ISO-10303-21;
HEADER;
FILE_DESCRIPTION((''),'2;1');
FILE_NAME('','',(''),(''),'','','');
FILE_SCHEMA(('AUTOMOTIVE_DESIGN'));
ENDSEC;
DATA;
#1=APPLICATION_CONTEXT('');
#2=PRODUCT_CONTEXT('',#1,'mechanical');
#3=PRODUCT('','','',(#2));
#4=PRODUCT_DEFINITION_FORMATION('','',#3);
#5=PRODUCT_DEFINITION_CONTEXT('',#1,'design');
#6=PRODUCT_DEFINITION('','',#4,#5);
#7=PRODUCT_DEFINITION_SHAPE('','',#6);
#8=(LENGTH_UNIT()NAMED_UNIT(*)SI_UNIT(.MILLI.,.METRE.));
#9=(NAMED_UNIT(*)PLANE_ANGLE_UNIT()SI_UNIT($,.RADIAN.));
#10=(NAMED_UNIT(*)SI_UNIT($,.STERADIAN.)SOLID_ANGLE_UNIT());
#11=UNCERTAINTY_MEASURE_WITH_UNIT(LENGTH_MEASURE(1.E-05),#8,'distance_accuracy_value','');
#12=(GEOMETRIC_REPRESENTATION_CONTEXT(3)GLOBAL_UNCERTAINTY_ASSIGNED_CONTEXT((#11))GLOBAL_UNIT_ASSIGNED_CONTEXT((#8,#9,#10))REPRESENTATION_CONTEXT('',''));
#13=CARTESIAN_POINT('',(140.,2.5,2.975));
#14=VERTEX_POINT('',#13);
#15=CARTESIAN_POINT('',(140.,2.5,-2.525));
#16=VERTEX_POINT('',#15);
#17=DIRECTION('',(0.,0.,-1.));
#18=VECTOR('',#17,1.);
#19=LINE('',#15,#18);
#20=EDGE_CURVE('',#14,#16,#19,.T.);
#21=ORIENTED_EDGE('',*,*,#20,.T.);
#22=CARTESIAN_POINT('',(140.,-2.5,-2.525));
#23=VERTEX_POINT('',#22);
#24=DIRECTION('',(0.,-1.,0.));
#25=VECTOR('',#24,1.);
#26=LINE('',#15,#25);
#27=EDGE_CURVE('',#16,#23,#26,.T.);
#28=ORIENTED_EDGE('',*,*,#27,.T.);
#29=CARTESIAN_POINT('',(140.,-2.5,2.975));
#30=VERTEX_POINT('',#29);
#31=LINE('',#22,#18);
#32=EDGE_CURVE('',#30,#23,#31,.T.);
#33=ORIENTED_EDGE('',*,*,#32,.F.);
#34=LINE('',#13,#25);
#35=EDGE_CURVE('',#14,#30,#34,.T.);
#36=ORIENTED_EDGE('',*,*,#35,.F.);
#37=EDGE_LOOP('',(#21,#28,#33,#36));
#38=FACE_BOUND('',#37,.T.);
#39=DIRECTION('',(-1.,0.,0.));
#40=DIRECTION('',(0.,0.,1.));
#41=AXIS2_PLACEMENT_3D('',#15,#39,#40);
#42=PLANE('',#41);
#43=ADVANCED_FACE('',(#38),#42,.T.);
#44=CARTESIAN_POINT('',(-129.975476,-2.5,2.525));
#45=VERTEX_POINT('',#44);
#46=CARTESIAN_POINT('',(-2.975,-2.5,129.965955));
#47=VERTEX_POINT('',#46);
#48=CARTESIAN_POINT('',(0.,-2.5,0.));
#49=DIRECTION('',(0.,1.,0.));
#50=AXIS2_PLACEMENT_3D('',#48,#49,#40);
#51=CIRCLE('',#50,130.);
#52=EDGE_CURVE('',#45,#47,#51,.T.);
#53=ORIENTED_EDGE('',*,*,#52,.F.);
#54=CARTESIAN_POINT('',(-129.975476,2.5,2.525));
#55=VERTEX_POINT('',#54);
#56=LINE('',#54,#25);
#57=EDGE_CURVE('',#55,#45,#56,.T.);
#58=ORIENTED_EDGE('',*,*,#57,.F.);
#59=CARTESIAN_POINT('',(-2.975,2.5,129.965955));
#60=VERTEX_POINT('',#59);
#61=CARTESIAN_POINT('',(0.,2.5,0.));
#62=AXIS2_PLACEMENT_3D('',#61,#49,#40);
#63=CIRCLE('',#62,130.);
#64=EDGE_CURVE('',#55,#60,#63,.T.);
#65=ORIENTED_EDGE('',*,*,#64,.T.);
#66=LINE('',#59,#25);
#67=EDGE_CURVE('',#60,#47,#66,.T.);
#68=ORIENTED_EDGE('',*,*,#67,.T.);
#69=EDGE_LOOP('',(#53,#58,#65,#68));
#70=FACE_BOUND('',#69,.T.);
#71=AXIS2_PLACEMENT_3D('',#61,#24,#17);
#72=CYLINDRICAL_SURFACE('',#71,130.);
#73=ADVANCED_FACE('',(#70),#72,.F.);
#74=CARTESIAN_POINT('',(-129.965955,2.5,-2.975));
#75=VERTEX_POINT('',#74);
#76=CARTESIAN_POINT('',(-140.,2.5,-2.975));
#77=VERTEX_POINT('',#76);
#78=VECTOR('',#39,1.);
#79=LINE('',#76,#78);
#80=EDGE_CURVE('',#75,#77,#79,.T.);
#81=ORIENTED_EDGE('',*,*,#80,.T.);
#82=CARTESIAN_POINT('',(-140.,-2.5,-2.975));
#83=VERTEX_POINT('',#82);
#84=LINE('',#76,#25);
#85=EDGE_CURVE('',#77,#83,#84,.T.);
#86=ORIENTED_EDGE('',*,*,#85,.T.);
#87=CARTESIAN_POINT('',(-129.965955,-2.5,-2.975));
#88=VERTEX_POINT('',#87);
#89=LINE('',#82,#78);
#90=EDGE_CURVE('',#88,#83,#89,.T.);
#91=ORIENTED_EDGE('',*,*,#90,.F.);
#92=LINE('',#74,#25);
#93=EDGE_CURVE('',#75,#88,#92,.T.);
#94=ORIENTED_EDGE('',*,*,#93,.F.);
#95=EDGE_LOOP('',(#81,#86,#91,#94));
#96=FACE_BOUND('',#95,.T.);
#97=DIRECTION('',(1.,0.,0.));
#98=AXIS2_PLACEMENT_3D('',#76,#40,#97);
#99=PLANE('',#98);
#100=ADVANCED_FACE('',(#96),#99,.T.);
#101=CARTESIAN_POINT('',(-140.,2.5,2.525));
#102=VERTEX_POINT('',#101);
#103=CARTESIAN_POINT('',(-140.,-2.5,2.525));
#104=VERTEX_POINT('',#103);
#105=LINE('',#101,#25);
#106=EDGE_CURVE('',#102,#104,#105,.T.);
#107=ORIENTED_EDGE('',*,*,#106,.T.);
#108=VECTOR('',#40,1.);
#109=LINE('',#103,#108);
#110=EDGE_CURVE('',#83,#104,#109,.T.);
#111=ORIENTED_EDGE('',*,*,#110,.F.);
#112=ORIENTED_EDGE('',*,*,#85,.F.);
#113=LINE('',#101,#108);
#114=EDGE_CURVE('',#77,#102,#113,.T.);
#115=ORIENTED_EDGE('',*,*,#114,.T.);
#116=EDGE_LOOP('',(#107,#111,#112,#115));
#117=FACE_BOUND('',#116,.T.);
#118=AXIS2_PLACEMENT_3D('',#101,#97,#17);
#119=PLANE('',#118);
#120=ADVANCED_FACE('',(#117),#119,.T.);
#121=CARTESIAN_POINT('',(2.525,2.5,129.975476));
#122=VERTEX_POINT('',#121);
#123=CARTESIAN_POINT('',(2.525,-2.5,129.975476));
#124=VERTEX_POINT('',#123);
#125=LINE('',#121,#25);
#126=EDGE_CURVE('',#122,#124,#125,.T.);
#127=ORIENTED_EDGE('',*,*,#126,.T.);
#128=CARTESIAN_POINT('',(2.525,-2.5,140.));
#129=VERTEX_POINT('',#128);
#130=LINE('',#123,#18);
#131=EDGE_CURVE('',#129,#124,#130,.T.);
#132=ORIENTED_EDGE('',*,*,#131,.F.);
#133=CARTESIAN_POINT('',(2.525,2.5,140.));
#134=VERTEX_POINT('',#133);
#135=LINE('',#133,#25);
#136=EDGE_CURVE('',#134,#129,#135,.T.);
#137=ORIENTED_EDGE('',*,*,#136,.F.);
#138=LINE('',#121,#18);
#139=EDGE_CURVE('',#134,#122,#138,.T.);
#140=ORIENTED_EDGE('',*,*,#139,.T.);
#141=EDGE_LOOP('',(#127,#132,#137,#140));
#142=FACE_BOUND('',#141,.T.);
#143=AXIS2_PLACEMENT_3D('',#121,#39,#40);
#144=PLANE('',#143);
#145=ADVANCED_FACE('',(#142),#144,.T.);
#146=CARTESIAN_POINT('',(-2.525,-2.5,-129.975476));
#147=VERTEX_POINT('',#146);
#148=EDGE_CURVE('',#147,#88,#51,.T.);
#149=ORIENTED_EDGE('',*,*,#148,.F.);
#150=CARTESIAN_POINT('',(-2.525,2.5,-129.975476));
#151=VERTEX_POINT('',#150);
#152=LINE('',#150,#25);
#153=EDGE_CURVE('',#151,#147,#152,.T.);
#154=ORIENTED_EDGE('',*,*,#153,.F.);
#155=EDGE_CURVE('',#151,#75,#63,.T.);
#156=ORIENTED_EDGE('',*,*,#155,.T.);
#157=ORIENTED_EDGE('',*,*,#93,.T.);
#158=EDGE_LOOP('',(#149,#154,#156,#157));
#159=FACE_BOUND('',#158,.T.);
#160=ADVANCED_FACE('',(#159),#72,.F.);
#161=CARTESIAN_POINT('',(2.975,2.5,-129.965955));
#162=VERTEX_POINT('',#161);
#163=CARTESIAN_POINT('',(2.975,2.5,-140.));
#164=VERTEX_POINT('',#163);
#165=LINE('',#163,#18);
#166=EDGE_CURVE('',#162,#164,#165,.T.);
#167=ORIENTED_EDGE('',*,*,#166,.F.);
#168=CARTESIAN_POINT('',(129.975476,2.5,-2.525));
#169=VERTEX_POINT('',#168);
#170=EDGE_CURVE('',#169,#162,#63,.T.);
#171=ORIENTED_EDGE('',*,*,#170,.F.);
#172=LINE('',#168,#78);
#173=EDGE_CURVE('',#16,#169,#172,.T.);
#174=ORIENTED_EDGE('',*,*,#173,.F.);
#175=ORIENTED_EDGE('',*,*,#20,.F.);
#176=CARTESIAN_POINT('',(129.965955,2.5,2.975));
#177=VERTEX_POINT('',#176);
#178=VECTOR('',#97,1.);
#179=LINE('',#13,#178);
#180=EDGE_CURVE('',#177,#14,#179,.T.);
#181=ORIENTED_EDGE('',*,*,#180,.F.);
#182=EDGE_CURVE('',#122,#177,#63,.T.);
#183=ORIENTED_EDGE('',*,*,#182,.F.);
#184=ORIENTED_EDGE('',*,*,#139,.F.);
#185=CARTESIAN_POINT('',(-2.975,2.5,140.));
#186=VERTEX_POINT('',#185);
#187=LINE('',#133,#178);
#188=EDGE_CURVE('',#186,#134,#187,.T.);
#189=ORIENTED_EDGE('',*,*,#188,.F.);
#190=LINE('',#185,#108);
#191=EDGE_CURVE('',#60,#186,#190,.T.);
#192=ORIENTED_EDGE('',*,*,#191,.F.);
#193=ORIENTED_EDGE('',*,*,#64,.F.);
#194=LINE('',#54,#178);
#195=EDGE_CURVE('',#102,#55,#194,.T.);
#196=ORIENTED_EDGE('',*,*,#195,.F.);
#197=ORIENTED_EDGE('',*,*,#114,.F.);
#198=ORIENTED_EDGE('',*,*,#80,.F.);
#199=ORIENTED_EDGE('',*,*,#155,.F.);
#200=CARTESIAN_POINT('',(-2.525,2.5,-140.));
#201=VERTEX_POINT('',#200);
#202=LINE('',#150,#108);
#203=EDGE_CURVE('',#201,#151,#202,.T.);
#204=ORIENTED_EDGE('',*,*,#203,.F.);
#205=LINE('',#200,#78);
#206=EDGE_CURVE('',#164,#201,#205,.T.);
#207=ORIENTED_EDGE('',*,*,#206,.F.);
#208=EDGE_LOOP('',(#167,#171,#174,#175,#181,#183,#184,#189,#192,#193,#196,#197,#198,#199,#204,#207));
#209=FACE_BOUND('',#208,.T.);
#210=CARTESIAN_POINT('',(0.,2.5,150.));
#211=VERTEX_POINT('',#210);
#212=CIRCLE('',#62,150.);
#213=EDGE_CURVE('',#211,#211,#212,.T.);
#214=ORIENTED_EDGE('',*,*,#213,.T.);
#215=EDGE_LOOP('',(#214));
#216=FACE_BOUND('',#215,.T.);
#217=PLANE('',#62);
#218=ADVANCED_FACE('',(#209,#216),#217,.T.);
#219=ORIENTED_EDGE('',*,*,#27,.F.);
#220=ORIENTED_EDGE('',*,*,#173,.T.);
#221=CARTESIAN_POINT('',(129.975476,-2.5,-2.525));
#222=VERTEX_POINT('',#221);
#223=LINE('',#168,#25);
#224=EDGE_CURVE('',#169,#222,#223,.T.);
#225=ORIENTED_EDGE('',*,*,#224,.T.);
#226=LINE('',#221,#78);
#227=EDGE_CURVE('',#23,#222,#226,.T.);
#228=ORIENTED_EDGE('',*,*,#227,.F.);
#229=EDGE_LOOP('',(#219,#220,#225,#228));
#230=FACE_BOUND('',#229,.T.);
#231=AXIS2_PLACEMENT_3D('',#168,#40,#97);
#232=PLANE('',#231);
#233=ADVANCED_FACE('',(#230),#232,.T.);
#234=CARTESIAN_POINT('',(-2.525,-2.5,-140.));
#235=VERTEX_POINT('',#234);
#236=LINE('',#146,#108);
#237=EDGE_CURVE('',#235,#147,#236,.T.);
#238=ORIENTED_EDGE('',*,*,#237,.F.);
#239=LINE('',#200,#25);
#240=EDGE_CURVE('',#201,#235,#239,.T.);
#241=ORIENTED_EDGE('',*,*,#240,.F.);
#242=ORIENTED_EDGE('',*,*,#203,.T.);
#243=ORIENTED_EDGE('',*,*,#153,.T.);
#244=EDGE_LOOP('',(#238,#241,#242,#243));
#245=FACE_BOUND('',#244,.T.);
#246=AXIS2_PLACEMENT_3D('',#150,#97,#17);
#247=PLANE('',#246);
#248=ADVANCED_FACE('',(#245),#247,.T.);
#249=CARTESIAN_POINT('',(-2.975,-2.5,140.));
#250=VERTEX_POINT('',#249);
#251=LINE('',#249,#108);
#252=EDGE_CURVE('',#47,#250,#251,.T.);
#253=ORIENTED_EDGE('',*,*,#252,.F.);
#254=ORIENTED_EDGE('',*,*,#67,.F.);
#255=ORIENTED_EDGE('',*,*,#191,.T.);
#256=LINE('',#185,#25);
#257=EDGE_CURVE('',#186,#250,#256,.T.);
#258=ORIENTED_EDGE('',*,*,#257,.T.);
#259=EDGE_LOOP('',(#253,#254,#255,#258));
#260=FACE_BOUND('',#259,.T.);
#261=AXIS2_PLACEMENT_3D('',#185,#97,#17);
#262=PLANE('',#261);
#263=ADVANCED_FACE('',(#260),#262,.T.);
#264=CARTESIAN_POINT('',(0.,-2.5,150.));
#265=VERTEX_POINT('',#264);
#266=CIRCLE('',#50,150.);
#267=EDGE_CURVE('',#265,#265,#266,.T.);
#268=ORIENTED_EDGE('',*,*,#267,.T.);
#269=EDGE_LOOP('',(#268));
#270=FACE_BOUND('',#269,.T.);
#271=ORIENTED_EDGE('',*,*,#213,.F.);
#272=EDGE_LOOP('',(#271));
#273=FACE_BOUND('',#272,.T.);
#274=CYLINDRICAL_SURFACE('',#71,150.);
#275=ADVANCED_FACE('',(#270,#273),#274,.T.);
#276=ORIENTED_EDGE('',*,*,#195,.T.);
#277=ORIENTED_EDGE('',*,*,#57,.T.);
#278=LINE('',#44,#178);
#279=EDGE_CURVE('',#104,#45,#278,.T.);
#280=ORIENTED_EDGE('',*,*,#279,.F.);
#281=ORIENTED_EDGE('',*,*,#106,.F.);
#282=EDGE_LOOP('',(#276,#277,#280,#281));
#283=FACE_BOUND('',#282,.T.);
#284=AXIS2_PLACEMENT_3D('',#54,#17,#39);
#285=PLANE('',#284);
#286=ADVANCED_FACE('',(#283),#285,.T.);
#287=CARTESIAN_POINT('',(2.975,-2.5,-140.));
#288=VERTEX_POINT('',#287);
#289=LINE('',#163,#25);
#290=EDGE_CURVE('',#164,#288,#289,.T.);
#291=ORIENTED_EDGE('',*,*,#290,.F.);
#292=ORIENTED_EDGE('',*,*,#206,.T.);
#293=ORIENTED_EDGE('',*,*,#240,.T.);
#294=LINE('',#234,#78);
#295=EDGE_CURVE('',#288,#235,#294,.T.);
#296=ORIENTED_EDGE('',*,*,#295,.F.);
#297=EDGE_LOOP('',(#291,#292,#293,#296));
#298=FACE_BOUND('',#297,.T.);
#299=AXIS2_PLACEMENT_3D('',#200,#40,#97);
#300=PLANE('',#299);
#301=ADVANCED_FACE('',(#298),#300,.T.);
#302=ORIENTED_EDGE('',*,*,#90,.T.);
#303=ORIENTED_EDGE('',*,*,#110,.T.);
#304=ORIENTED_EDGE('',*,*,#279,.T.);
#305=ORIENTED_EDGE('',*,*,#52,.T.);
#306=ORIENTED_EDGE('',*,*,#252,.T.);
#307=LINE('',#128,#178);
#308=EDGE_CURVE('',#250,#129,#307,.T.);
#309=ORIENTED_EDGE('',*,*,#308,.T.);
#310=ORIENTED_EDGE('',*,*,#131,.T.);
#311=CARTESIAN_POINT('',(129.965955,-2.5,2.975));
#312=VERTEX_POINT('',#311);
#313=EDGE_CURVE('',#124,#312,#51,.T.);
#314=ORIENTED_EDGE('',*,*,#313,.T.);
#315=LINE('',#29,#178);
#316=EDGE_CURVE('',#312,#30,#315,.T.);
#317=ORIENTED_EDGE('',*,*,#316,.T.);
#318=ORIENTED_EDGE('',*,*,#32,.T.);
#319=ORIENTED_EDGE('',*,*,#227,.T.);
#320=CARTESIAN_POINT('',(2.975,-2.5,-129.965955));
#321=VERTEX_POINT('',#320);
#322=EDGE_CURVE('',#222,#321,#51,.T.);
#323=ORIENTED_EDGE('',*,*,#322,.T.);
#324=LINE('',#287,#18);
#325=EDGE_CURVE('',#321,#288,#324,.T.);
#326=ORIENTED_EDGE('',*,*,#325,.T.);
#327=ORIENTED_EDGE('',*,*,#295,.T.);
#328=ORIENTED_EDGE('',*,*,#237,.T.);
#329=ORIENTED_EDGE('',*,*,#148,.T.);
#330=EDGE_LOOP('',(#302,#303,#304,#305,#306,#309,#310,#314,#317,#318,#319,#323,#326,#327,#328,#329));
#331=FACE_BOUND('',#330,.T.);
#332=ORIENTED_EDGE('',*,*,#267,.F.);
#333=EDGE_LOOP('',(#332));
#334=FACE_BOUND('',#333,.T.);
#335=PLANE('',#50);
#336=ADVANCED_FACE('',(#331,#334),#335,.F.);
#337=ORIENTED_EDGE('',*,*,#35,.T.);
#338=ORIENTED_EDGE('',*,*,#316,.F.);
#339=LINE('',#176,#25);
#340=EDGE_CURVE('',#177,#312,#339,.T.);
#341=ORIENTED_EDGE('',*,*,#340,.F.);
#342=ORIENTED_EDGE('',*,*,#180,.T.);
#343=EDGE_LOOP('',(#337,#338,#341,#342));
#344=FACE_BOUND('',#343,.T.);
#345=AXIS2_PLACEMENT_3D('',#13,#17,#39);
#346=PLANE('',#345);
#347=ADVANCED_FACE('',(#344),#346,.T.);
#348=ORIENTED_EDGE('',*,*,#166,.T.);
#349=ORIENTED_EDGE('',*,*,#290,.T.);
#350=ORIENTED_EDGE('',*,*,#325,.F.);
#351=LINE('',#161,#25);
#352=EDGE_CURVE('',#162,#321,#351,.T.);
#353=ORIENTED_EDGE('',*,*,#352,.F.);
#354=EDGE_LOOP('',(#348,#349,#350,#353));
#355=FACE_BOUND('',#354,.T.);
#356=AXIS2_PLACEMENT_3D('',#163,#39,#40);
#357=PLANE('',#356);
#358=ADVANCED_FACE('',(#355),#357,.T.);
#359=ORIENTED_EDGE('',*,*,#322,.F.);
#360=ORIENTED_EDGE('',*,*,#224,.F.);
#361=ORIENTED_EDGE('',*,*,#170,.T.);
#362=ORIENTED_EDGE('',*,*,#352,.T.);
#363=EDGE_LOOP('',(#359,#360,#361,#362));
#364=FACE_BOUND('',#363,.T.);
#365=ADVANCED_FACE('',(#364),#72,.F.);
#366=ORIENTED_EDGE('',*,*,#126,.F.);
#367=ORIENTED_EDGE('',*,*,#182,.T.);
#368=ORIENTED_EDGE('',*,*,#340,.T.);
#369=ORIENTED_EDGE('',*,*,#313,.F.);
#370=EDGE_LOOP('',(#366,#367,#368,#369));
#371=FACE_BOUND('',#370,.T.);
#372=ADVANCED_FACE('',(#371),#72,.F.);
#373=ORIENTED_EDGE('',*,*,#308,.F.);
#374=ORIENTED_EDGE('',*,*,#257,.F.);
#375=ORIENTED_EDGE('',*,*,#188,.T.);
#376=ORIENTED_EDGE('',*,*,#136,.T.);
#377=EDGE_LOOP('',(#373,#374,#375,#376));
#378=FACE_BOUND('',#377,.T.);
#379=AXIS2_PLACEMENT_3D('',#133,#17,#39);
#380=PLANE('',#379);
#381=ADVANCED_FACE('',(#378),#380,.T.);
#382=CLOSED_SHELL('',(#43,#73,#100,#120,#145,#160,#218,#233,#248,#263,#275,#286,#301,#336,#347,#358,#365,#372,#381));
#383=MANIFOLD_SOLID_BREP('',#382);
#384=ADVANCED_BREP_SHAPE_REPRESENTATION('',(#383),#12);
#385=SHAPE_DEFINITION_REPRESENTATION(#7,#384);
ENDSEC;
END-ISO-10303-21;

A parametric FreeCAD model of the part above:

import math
import FreeCAD as App
import Part
import Sketcher

V = App.Vector

doc = App.newDocument("Part")
body = doc.addObject("PartDesign::Body", "Body")

# Sketch on XZ plane
sketch1 = body.newObject("Sketcher::SketchObject", "Sketch")
sketch1.AttachmentSupport = (doc.getObject("XZ_Plane"), [""])
sketch1.MapMode = "FlatFace"
sketch1.addGeometry([
    Part.Circle(V(0, 0, 0), V(0, 0, 1), 150),  # 0
    Part.ArcOfCircle(Part.Circle(V(0, 0, 0), V(0, 0, 1), 130), math.radians(1.311306), math.radians(88.88707)),  # 1
    Part.LineSegment(V(2.525, 129.975476, 0), V(2.525, 140, 0)),  # 2
    Part.LineSegment(V(2.525, 140, 0), V(-2.975, 140, 0)),  # 3
    Part.LineSegment(V(-2.975, 140, 0), V(-2.975, 129.965955, 0)),  # 4
    Part.ArcOfCircle(Part.Circle(V(0, 0, 0), V(0, 0, 1), 130), math.radians(91.311306), math.radians(178.88707)),  # 5
    Part.LineSegment(V(-129.975476, 2.525, 0), V(-140, 2.525, 0)),  # 6
    Part.LineSegment(V(-140, 2.525, 0), V(-140, -2.975, 0)),  # 7
    Part.LineSegment(V(-140, -2.975, 0), V(-129.965955, -2.975, 0)),  # 8
    Part.ArcOfCircle(Part.Circle(V(0, 0, 0), V(0, 0, 1), 130), math.radians(-178.688694), math.radians(-91.11293)),  # 9
    Part.LineSegment(V(-2.525, -129.975476, 0), V(-2.525, -140, 0)),  # 10
    Part.LineSegment(V(-2.525, -140, 0), V(2.975, -140, 0)),  # 11
    Part.LineSegment(V(2.975, -140, 0), V(2.975, -129.965955, 0)),  # 12
    Part.ArcOfCircle(Part.Circle(V(0, 0, 0), V(0, 0, 1), 130), math.radians(-88.688694), math.radians(-1.11293)),  # 13
    Part.LineSegment(V(129.975476, -2.525, 0), V(140, -2.525, 0)),  # 14
    Part.LineSegment(V(140, -2.525, 0), V(140, 2.975, 0)),  # 15
    Part.LineSegment(V(140, 2.975, 0), V(129.965955, 2.975, 0)),  # 16
], False)
sketch1.addConstraint([
    Sketcher.Constraint("Coincident", 1, 2, 2, 1),
    Sketcher.Constraint("Coincident", 2, 2, 3, 1),
    Sketcher.Constraint("Coincident", 3, 2, 4, 1),
    Sketcher.Constraint("Coincident", 4, 2, 5, 1),
    Sketcher.Constraint("Coincident", 5, 2, 6, 1),
    Sketcher.Constraint("Coincident", 6, 2, 7, 1),
    Sketcher.Constraint("Coincident", 7, 2, 8, 1),
    Sketcher.Constraint("Coincident", 8, 2, 9, 1),
    Sketcher.Constraint("Coincident", 9, 2, 10, 1),
    Sketcher.Constraint("Coincident", 10, 2, 11, 1),
    Sketcher.Constraint("Coincident", 11, 2, 12, 1),
    Sketcher.Constraint("Coincident", 12, 2, 13, 1),
    Sketcher.Constraint("Coincident", 13, 2, 14, 1),
    Sketcher.Constraint("Coincident", 14, 2, 15, 1),
    Sketcher.Constraint("Coincident", 15, 2, 16, 1),
    Sketcher.Constraint("Coincident", 16, 2, 1, 1),
    Sketcher.Constraint("Vertical", 2),
    Sketcher.Constraint("Horizontal", 3),
    Sketcher.Constraint("Vertical", 4),
    Sketcher.Constraint("Horizontal", 6),
    Sketcher.Constraint("Vertical", 7),
    Sketcher.Constraint("Horizontal", 8),
    Sketcher.Constraint("Vertical", 10),
    Sketcher.Constraint("Horizontal", 11),
    Sketcher.Constraint("Vertical", 12),
    Sketcher.Constraint("Horizontal", 14),
    Sketcher.Constraint("Vertical", 15),
    Sketcher.Constraint("Horizontal", 16),
    Sketcher.Constraint("Coincident", 0, 3, -1, 1),
    Sketcher.Constraint("Coincident", 1, 3, -1, 1),
    Sketcher.Constraint("Coincident", 5, 3, -1, 1),
    Sketcher.Constraint("Coincident", 9, 3, -1, 1),
    Sketcher.Constraint("Coincident", 13, 3, -1, 1),
    Sketcher.Constraint("Equal", 1, 5),
    Sketcher.Constraint("Equal", 5, 9),
    Sketcher.Constraint("Equal", 9, 13),
    Sketcher.Constraint("Symmetric", 2, 2, 10, 2, -1, 1),
    Sketcher.Constraint("Symmetric", 6, 2, 14, 2, -1, 1),
    Sketcher.Constraint("Equal", 3, 11),
    Sketcher.Constraint("Equal", 8, 16),
    Sketcher.Constraint("Equal", 14, 2),
    Sketcher.Constraint("Equal", 16, 4),
    Sketcher.Constraint("Equal", 11, 7),
    Sketcher.Constraint("Diameter", 0, 300.0),
    Sketcher.Constraint("Radius", 1, 130.0),
    Sketcher.Constraint("DistanceX", 3, 2, 3, 1, 5.5),
    Sketcher.Constraint("DistanceY", -1, 1, 2, 2, 140.0),
    Sketcher.Constraint("DistanceX", -1, 1, 2, 2, 2.525),
])
pad1 = body.newObject("PartDesign::Pad", "Pad")
pad1.Profile = sketch1
pad1.Length = 5
pad1.Midplane = True

doc.recompute()
